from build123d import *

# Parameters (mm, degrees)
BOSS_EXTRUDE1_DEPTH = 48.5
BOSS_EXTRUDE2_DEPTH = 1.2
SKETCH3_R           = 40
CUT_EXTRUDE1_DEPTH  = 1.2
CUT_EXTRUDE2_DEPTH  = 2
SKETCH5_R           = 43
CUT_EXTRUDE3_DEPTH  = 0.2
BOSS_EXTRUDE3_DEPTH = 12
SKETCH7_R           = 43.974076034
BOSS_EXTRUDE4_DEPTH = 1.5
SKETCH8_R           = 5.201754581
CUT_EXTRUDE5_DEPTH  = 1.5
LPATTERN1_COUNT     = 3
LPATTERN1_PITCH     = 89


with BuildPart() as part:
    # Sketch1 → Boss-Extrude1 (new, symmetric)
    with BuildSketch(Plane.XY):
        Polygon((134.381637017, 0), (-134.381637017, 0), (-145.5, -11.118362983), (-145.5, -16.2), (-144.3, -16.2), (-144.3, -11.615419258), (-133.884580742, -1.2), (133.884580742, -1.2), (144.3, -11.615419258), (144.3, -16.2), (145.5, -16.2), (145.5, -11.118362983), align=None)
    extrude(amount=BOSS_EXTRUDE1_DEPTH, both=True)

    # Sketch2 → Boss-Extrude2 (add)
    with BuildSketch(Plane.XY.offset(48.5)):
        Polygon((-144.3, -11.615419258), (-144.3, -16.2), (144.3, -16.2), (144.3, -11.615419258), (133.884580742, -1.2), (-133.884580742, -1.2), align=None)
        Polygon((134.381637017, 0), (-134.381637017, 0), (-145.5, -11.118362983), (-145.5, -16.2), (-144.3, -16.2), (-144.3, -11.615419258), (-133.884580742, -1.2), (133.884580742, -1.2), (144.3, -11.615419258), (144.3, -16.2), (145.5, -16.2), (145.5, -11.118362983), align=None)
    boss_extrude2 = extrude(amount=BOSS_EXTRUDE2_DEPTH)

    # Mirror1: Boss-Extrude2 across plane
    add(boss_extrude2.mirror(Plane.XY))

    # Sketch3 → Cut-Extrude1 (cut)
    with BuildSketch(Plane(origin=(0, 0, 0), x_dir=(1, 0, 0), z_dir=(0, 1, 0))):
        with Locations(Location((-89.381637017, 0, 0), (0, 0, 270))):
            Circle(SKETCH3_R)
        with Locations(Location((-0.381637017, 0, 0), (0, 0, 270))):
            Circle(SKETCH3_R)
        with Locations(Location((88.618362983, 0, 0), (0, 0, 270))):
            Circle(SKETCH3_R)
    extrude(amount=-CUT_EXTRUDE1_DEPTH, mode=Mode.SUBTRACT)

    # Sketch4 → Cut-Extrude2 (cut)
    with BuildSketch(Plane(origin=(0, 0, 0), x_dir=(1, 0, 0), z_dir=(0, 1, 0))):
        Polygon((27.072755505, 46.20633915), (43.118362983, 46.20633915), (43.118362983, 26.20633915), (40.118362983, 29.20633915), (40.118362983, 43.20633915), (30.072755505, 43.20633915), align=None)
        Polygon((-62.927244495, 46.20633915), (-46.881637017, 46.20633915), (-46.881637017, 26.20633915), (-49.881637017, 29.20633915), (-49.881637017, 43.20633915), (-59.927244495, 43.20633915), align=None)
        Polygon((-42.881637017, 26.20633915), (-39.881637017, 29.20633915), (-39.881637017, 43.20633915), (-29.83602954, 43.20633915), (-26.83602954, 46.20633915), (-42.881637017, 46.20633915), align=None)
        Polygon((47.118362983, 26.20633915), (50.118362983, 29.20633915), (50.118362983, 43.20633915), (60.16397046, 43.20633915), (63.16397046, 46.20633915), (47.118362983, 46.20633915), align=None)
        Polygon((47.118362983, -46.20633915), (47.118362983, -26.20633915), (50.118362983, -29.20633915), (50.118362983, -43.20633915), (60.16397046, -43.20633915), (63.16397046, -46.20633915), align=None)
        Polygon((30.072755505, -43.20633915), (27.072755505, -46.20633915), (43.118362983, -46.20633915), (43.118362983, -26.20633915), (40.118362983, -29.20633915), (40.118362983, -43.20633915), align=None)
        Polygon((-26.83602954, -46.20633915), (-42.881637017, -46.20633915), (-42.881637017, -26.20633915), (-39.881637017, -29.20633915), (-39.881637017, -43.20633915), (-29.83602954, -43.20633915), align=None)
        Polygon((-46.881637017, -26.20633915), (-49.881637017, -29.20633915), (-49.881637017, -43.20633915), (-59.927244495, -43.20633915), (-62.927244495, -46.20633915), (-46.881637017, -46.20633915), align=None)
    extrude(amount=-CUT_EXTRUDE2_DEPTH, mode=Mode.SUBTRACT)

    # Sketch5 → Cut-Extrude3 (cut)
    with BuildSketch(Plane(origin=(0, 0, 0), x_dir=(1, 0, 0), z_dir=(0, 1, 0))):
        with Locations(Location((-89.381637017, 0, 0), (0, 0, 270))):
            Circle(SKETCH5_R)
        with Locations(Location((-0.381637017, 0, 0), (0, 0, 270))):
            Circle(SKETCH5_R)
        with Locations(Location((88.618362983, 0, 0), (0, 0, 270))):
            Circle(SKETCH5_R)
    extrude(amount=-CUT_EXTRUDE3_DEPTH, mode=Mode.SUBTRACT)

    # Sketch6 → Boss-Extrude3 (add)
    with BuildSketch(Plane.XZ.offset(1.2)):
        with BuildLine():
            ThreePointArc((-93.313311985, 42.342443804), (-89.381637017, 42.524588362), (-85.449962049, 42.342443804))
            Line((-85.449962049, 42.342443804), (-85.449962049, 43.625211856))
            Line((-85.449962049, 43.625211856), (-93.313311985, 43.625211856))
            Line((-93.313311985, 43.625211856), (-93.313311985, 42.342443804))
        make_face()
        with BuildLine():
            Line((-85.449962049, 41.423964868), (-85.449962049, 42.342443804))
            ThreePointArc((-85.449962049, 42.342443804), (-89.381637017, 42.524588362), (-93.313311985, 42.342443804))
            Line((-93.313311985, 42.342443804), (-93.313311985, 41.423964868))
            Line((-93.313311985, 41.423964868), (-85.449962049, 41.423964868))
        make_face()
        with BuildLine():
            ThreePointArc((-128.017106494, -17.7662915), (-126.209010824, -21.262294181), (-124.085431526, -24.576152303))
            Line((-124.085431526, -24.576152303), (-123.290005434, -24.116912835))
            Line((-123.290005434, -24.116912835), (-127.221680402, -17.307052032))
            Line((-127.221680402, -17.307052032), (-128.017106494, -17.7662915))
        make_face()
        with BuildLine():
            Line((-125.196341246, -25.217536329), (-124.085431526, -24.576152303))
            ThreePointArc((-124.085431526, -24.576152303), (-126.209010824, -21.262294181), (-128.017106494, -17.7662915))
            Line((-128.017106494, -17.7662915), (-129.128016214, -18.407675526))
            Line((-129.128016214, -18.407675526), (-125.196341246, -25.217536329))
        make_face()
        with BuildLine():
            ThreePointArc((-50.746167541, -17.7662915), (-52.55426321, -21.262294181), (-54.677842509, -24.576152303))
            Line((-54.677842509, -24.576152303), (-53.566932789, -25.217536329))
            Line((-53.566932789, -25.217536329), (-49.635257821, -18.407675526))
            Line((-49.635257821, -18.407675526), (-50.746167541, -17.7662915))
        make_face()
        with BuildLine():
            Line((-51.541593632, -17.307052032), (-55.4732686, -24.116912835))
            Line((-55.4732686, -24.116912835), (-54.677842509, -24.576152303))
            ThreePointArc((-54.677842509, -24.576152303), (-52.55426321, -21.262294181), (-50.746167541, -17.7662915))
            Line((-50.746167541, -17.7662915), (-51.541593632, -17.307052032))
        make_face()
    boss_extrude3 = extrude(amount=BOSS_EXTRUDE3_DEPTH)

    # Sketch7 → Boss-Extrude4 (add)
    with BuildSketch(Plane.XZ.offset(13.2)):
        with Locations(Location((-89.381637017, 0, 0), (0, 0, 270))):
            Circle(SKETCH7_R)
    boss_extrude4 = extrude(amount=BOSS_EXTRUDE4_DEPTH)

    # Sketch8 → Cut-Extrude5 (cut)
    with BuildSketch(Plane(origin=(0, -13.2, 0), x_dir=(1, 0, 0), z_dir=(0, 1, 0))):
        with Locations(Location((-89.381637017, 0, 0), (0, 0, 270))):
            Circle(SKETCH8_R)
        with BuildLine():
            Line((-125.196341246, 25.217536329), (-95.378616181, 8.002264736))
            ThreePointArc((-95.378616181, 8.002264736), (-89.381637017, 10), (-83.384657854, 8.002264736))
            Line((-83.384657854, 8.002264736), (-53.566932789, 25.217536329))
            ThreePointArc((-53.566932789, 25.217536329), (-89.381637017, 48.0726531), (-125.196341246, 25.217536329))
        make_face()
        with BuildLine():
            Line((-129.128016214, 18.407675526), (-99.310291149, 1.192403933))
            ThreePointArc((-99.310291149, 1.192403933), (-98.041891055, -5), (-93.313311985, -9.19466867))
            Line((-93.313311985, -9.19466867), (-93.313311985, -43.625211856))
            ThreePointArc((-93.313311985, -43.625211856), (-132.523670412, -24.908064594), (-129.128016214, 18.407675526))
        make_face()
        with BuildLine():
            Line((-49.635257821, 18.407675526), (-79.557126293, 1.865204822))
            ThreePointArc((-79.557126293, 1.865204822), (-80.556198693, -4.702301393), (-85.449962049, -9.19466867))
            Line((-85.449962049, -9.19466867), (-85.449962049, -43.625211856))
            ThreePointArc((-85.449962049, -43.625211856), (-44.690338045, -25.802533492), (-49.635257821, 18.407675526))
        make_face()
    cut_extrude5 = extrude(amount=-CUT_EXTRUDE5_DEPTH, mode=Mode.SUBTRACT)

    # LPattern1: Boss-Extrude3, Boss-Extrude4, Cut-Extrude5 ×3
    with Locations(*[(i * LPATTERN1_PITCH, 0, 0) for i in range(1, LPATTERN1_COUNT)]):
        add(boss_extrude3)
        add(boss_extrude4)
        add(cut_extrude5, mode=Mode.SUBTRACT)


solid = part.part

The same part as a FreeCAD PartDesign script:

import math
import FreeCAD as App
import Part
import Sketcher
Q = App.Units.Quantity

doc = App.newDocument("Part")
params = doc.addObject("Spreadsheet::Sheet", "Params")
for row, (alias, value) in enumerate([
    ("sketch1_width", "1.2 mm"),
    ("pad1_length", "97 mm"),
    ("sketch2_width", "291 mm"),
    ("pad2_length", "1.2 mm"),
    ("sketch3_diameter", "80 mm"),
    ("pocket1_length", "1.2 mm"),
    ("sketch4_height", "14 mm"),
    ("sketch4_height2", "20 mm"),
    ("pocket2_length", "2 mm"),
    ("sketch5_diameter", "86 mm"),
    ("pocket3_length", "0.2 mm"),
    ("pad3_length", "12 mm"),
    ("pad4_length", "1.5 mm"),
    ("sketch8_radius", "10 mm"),
    ("pocket4_length", "1.5 mm"),
    ("linearpattern_pitch", "89 mm"),
], start=1):
    params.set(f"A{row}", alias)
    params.set(f"B{row}", "=" + value)
    params.setAlias(f"B{row}", alias)

body = doc.addObject("PartDesign::Body", "Body")

sketch1 = body.newObject("Sketcher::SketchObject", "Sketch")
sketch1.AttachmentSupport = (doc.getObject("XY_Plane"), [""])
sketch1.MapMode = "FlatFace"
sketch1.addGeometry([
    Part.LineSegment(App.Vector(134.4, 0, 0), App.Vector(-134.4, 0, 0)),
    Part.LineSegment(App.Vector(-134.4, 0, 0), App.Vector(-145.5, -11.1, 0)),
    Part.LineSegment(App.Vector(-145.5, -11.1, 0), App.Vector(-145.5, -16.2, 0)),
    Part.LineSegment(App.Vector(-145.5, -16.2, 0), App.Vector(-144.3, -16.2, 0)),
    Part.LineSegment(App.Vector(-144.3, -16.2, 0), App.Vector(-144.3, -11.6, 0)),
    Part.LineSegment(App.Vector(-144.3, -11.6, 0), App.Vector(-133.9, -1.2, 0)),
    Part.LineSegment(App.Vector(-133.9, -1.2, 0), App.Vector(133.9, -1.2, 0)),
    Part.LineSegment(App.Vector(133.9, -1.2, 0), App.Vector(144.3, -11.6, 0)),
    Part.LineSegment(App.Vector(144.3, -11.6, 0), App.Vector(144.3, -16.2, 0)),
    Part.LineSegment(App.Vector(144.3, -16.2, 0), App.Vector(145.5, -16.2, 0)),
    Part.LineSegment(App.Vector(145.5, -16.2, 0), App.Vector(145.5, -11.1, 0)),
    Part.LineSegment(App.Vector(145.5, -11.1, 0), App.Vector(134.4, 0, 0)),
], False)
sketch1.addConstraint([
    Sketcher.Constraint("Coincident", 0, 2, 1, 1),
    Sketcher.Constraint("Coincident", 1, 2, 2, 1),
    Sketcher.Constraint("Coincident", 2, 2, 3, 1),
    Sketcher.Constraint("Coincident", 3, 2, 4, 1),
    Sketcher.Constraint("Coincident", 4, 2, 5, 1),
    Sketcher.Constraint("Coincident", 5, 2, 6, 1),
    Sketcher.Constraint("Coincident", 6, 2, 7, 1),
    Sketcher.Constraint("Coincident", 7, 2, 8, 1),
    Sketcher.Constraint("Coincident", 8, 2, 9, 1),
    Sketcher.Constraint("Coincident", 9, 2, 10, 1),
    Sketcher.Constraint("Coincident", 10, 2, 11, 1),
    Sketcher.Constraint("Coincident", 11, 2, 0, 1),
    Sketcher.Constraint("Horizontal", 0),
    Sketcher.Constraint("Vertical", 2),
    Sketcher.Constraint("Horizontal", 3),
    Sketcher.Constraint("Vertical", 4),
    Sketcher.Constraint("Horizontal", 6),
    Sketcher.Constraint("Vertical", 8),
    Sketcher.Constraint("Horizontal", 9),
    Sketcher.Constraint("Vertical", 10),
    Sketcher.Constraint("Symmetric", 0, 2, 11, 2, -1, 1),
    Sketcher.Constraint("Symmetric", 4, 2, 7, 2, -2),
    Sketcher.Constraint("Symmetric", 2, 2, 9, 2, -2),
    Sketcher.Constraint("Parallel", 1, 5),
    Sketcher.Constraint("Perpendicular", 5, 7),
    Sketcher.Constraint("Parallel", 7, 11),
    Sketcher.Constraint("Horizontal", 1, 2, 10, 2),
    Sketcher.Constraint("DistanceX", 3, 1, 3, 2, 1.2),
    Sketcher.Constraint("DistanceY", 3, 2, 5, 2, 15.0),
    Sketcher.Constraint("DistanceX", 1, 2, -1, 1, 145.5),
    Sketcher.Constraint("DistanceY", 2, 2, -1, 1, 16.2),
    Sketcher.Constraint("DistanceX", 6, 1, 6, 2, 267.769161),
    Sketcher.Constraint("Distance", 1, 15.72374),
])
sketch1.setExpression("Constraints[27]", "Params.sketch1_width")
pad1 = body.newObject("PartDesign::Pad", "Pad")
pad1.Profile = sketch1
pad1.setExpression("Length", "Params.pad1_length")
pad1.Midplane = True

sketch2 = body.newObject("Sketcher::SketchObject", "Sketch001")
sketch2.AttachmentSupport = (doc.getObject("XY_Plane"), [""])
sketch2.MapMode = "FlatFace"
sketch2.AttachmentOffset = App.Placement(App.Vector(0, 0, 48.5), App.Rotation())
sketch2.addGeometry([
    Part.LineSegment(App.Vector(146, -16, 0), App.Vector(146, -11, 0)),
    Part.LineSegment(App.Vector(146, -11, 0), App.Vector(134, 0, 0)),
    Part.LineSegment(App.Vector(134, 0, 0), App.Vector(-134, 0, 0)),
    Part.LineSegment(App.Vector(-134, 0, 0), App.Vector(-146, -11, 0)),
    Part.LineSegment(App.Vector(-146, -11, 0), App.Vector(-146, -16, 0)),
    Part.LineSegment(App.Vector(-146, -16, 0), App.Vector(146, -16, 0)),
], False)
sketch2.addConstraint([
    Sketcher.Constraint("Coincident", 0, 2, 1, 1),
    Sketcher.Constraint("Coincident", 1, 2, 2, 1),
    Sketcher.Constraint("Coincident", 2, 2, 3, 1),
    Sketcher.Constraint("Coincident", 3, 2, 4, 1),
    Sketcher.Constraint("Coincident", 4, 2, 5, 1),
    Sketcher.Constraint("Coincident", 5, 2, 0, 1),
    Sketcher.Constraint("Vertical", 0),
    Sketcher.Constraint("Horizontal", 2),
    Sketcher.Constraint("Vertical", 4),
    Sketcher.Constraint("Horizontal", 5),
    Sketcher.Constraint("Symmetric", 1, 2, 2, 2, -1, 1),
    Sketcher.Constraint("Symmetric", 0, 2, 3, 2, -2),
    Sketcher.Constraint("Perpendicular", 1, 3),
    Sketcher.Constraint("DistanceX", 5, 1, 5, 2, 291.0),
    Sketcher.Constraint("DistanceY", 4, 2, -1, 1, 16.2),
    Sketcher.Constraint("Distance", 1, 15.72374),
])
sketch2.setExpression("Constraints[13]", "Params.sketch2_width")
pad2 = body.newObject("PartDesign::Pad", "Pad001")
pad2.Profile = sketch2
pad2.setExpression("Length", "Params.pad2_length")
doc.recompute()

mirrored = body.newObject("PartDesign::Mirrored", "Mirrored")
mirrored.Originals = [pad2]
mirrored.MirrorPlane = (doc.getObject("XY_Plane"), [""])
body.Tip = mirrored

sketch3 = body.newObject("Sketcher::SketchObject", "Sketch002")
sketch3.AttachmentSupport = (doc.getObject("XZ_Plane"), [""])
sketch3.MapMode = "FlatFace"
sketch3.addGeometry([
    Part.Circle(App.Vector(-89, 0, 0), App.Vector(0, 0, 1), 40),
    Part.Circle(App.Vector(0, 0, 0), App.Vector(0, 0, 1), 40),
    Part.Circle(App.Vector(89, 0, 0), App.Vector(0, 0, 1), 40),
], False)
sketch3.addConstraint([
    Sketcher.Constraint("Equal", 0, 1),
    Sketcher.Constraint("Equal", 1, 2),
    Sketcher.Constraint("PointOnObject", 0, 3, -1),
    Sketcher.Constraint("PointOnObject", 1, 3, -1),
    Sketcher.Constraint("PointOnObject", 2, 3, -1),
    Sketcher.Constraint("Diameter", 0, 80.0),
    Sketcher.Constraint("DistanceX", 0, 3, 1, 3, 89.0),
    Sketcher.Constraint("DistanceX", 1, 3, 2, 3, 89.0),
    Sketcher.Constraint("DistanceX", 0, 3, -1, 1, 89.381637),
])
sketch3.setExpression("Constraints[5]", "Params.sketch3_diameter")
pocket1 = body.newObject("PartDesign::Pocket", "Pocket")
pocket1.Profile = sketch3
pocket1.setExpression("Length", "Params.pocket1_length")
pocket1.Reversed = True

sketch4 = body.newObject("Sketcher::SketchObject", "Sketch003")
sketch4.AttachmentSupport = (doc.getObject("XZ_Plane"), [""])
sketch4.MapMode = "FlatFace"
sketch4.addGeometry([
    Part.LineSegment(App.Vector(43.1, -46.2, 0), App.Vector(27.1, -46.2, 0)),
    Part.LineSegment(App.Vector(27.1, -46.2, 0), App.Vector(30.1, -43.2, 0)),
    Part.LineSegment(App.Vector(30.1, -43.2, 0), App.Vector(40.1, -43.2, 0)),
    Part.LineSegment(App.Vector(40.1, -43.2, 0), App.Vector(40.1, -29.2, 0)),
    Part.LineSegment(App.Vector(40.1, -29.2, 0), App.Vector(43.1, -26.2, 0)),
    Part.LineSegment(App.Vector(43.1, -26.2, 0), App.Vector(43.1, -46.2, 0)),
    Part.LineSegment(App.Vector(-46.9, -46.2, 0), App.Vector(-62.9, -46.2, 0)),
    Part.LineSegment(App.Vector(-62.9, -46.2, 0), App.Vector(-59.9, -43.2, 0)),
    Part.LineSegment(App.Vector(-59.9, -43.2, 0), App.Vector(-49.9, -43.2, 0)),
    Part.LineSegment(App.Vector(-49.9, -43.2, 0), App.Vector(-49.9, -29.2, 0)),
    Part.LineSegment(App.Vector(-49.9, -29.2, 0), App.Vector(-46.9, -26.2, 0)),
    Part.LineSegment(App.Vector(-46.9, -26.2, 0), App.Vector(-46.9, -46.2, 0)),
    Part.LineSegment(App.Vector(-42.9, -26.2, 0), App.Vector(-39.9, -29.2, 0)),
    Part.LineSegment(App.Vector(-39.9, -29.2, 0), App.Vector(-39.9, -43.2, 0)),
    Part.LineSegment(App.Vector(-39.9, -43.2, 0), App.Vector(-29.8, -43.2, 0)),
    Part.LineSegment(App.Vector(-29.8, -43.2, 0), App.Vector(-26.8, -46.2, 0)),
    Part.LineSegment(App.Vector(-26.8, -46.2, 0), App.Vector(-42.9, -46.2, 0)),
    Part.LineSegment(App.Vector(-42.9, -46.2, 0), App.Vector(-42.9, -26.2, 0)),
    Part.LineSegment(App.Vector(47.1, -26.2, 0), App.Vector(50.1, -29.2, 0)),
    Part.LineSegment(App.Vector(50.1, -29.2, 0), App.Vector(50.1, -43.2, 0)),
    Part.LineSegment(App.Vector(50.1, -43.2, 0), App.Vector(60.2, -43.2, 0)),
    Part.LineSegment(App.Vector(60.2, -43.2, 0), App.Vector(63.2, -46.2, 0)),
    Part.LineSegment(App.Vector(63.2, -46.2, 0), App.Vector(47.1, -46.2, 0)),
    Part.LineSegment(App.Vector(47.1, -46.2, 0), App.Vector(47.1, -26.2, 0)),
    Part.LineSegment(App.Vector(47.1, 26.2, 0), App.Vector(47.1, 46.2, 0)),
    Part.LineSegment(App.Vector(47.1, 46.2, 0), App.Vector(63.2, 46.2, 0)),
    Part.LineSegment(App.Vector(63.2, 46.2, 0), App.Vector(60.2, 43.2, 0)),
    Part.LineSegment(App.Vector(60.2, 43.2, 0), App.Vector(50.1, 43.2, 0)),
    Part.LineSegment(App.Vector(50.1, 43.2, 0), App.Vector(50.1, 29.2, 0)),
    Part.LineSegment(App.Vector(50.1, 29.2, 0), App.Vector(47.1, 26.2, 0)),
    Part.LineSegment(App.Vector(30.1, 43.2, 0), App.Vector(27.1, 46.2, 0)),
    Part.LineSegment(App.Vector(27.1, 46.2, 0), App.Vector(43.1, 46.2, 0)),
    Part.LineSegment(App.Vector(43.1, 46.2, 0), App.Vector(43.1, 26.2, 0)),
    Part.LineSegment(App.Vector(43.1, 26.2, 0), App.Vector(40.1, 29.2, 0)),
    Part.LineSegment(App.Vector(40.1, 29.2, 0), App.Vector(40.1, 43.2, 0)),
    Part.LineSegment(App.Vector(40.1, 43.2, 0), App.Vector(30.1, 43.2, 0)),
    Part.LineSegment(App.Vector(-42.9, 46.2, 0), App.Vector(-26.8, 46.2, 0)),
    Part.LineSegment(App.Vector(-26.8, 46.2, 0), App.Vector(-29.8, 43.2, 0)),
    Part.LineSegment(App.Vector(-29.8, 43.2, 0), App.Vector(-39.9, 43.2, 0)),
    Part.LineSegment(App.Vector(-39.9, 43.2, 0), App.Vector(-39.9, 29.2, 0)),
    Part.LineSegment(App.Vector(-39.9, 29.2, 0), App.Vector(-42.9, 26.2, 0)),
    Part.LineSegment(App.Vector(-42.9, 26.2, 0), App.Vector(-42.9, 46.2, 0)),
    Part.LineSegment(App.Vector(-46.9, 26.2, 0), App.Vector(-49.9, 29.2, 0)),
    Part.LineSegment(App.Vector(-49.9, 29.2, 0), App.Vector(-49.9, 43.2, 0)),
    Part.LineSegment(App.Vector(-49.9, 43.2, 0), App.Vector(-59.9, 43.2, 0)),
    Part.LineSegment(App.Vector(-59.9, 43.2, 0), App.Vector(-62.9, 46.2, 0)),
    Part.LineSegment(App.Vector(-62.9, 46.2, 0), App.Vector(-46.9, 46.2, 0)),
    Part.LineSegment(App.Vector(-46.9, 46.2, 0), App.Vector(-46.9, 26.2, 0)),
], False)
sketch4.addConstraint([
    Sketcher.Constraint("Coincident", 0, 2, 1, 1),
    Sketcher.Constraint("Coincident", 1, 2, 2, 1),
    Sketcher.Constraint("Coincident", 2, 2, 3, 1),
    Sketcher.Constraint("Coincident", 3, 2, 4, 1),
    Sketcher.Constraint("Coincident", 4, 2, 5, 1),
    Sketcher.Constraint("Coincident", 5, 2, 0, 1),
    Sketcher.Constraint("Coincident", 6, 2, 7, 1),
    Sketcher.Constraint("Coincident", 7, 2, 8, 1),
    Sketcher.Constraint("Coincident", 8, 2, 9, 1),
    Sketcher.Constraint("Coincident", 9, 2, 10, 1),
    Sketcher.Constraint("Coincident", 10, 2, 11, 1),
    Sketcher.Constraint("Coincident", 11, 2, 6, 1),
    Sketcher.Constraint("Coincident", 12, 2, 13, 1),
    Sketcher.Constraint("Coincident", 13, 2, 14, 1),
    Sketcher.Constraint("Coincident", 14, 2, 15, 1),
    Sketcher.Constraint("Coincident", 15, 2, 16, 1),
    Sketcher.Constraint("Coincident", 16, 2, 17, 1),
    Sketcher.Constraint("Coincident", 17, 2, 12, 1),
    Sketcher.Constraint("Coincident", 18, 2, 19, 1),
    Sketcher.Constraint("Coincident", 19, 2, 20, 1),
    Sketcher.Constraint("Coincident", 20, 2, 21, 1),
    Sketcher.Constraint("Coincident", 21, 2, 22, 1),
    Sketcher.Constraint("Coincident", 22, 2, 23, 1),
    Sketcher.Constraint("Coincident", 23, 2, 18, 1),
    Sketcher.Constraint("Coincident", 24, 2, 25, 1),
    Sketcher.Constraint("Coincident", 25, 2, 26, 1),
    Sketcher.Constraint("Coincident", 26, 2, 27, 1),
    Sketcher.Constraint("Coincident", 27, 2, 28, 1),
    Sketcher.Constraint("Coincident", 28, 2, 29, 1),
    Sketcher.Constraint("Coincident", 29, 2, 24, 1),
    Sketcher.Constraint("Coincident", 30, 2, 31, 1),
    Sketcher.Constraint("Coincident", 31, 2, 32, 1),
    Sketcher.Constraint("Coincident", 32, 2, 33, 1),
    Sketcher.Constraint("Coincident", 33, 2, 34, 1),
    Sketcher.Constraint("Coincident", 34, 2, 35, 1),
    Sketcher.Constraint("Coincident", 35, 2, 30, 1),
    Sketcher.Constraint("Coincident", 36, 2, 37, 1),
    Sketcher.Constraint("Coincident", 37, 2, 38, 1),
    Sketcher.Constraint("Coincident", 38, 2, 39, 1),
    Sketcher.Constraint("Coincident", 39, 2, 40, 1),
    Sketcher.Constraint("Coincident", 40, 2, 41, 1),
    Sketcher.Constraint("Coincident", 41, 2, 36, 1),
    Sketcher.Constraint("Coincident", 42, 2, 43, 1),
    Sketcher.Constraint("Coincident", 43, 2, 44, 1),
    Sketcher.Constraint("Coincident", 44, 2, 45, 1),
    Sketcher.Constraint("Coincident", 45, 2, 46, 1),
    Sketcher.Constraint("Coincident", 46, 2, 47, 1),
    Sketcher.Constraint("Coincident", 47, 2, 42, 1),
    Sketcher.Constraint("Horizontal", 0),
    Sketcher.Constraint("Horizontal", 2),
    Sketcher.Constraint("Vertical", 3),
    Sketcher.Constraint("Vertical", 5),
    Sketcher.Constraint("Horizontal", 6),
    Sketcher.Constraint("Horizontal", 8),
    Sketcher.Constraint("Vertical", 9),
    Sketcher.Constraint("Vertical", 11),
    Sketcher.Constraint("Vertical", 13),
    Sketcher.Constraint("Horizontal", 14),
    Sketcher.Constraint("Horizontal", 16),
    Sketcher.Constraint("Vertical", 17),
    Sketcher.Constraint("Vertical", 19),
    Sketcher.Constraint("Horizontal", 20),
    Sketcher.Constraint("Horizontal", 22),
    Sketcher.Constraint("Vertical", 23),
    Sketcher.Constraint("Vertical", 24),
    Sketcher.Constraint("Horizontal", 25),
    Sketcher.Constraint("Horizontal", 27),
    Sketcher.Constraint("Vertical", 28),
    Sketcher.Constraint("Horizontal", 31),
    Sketcher.Constraint("Vertical", 32),
    Sketcher.Constraint("Vertical", 34),
    Sketcher.Constraint("Horizontal", 35),
    Sketcher.Constraint("Horizontal", 36),
    Sketcher.Constraint("Horizontal", 38),
    Sketcher.Constraint("Vertical", 39),
    Sketcher.Constraint("Vertical", 41),
    Sketcher.Constraint("Vertical", 43),
    Sketcher.Constraint("Horizontal", 44),
    Sketcher.Constraint("Horizontal", 46),
    Sketcher.Constraint("Vertical", 47),
    Sketcher.Constraint("Symmetric", 22, 2, 24, 2, -1),
    Sketcher.Constraint("Symmetric", 20, 2, 26, 2, -1),
    Sketcher.Constraint("Symmetric", 18, 2, 28, 2, -1),
    Sketcher.Constraint("Symmetric", 0, 2, 30, 2, -1),
    Sketcher.Constraint("Symmetric", 4, 2, 32, 2, -1),
    Sketcher.Constraint("Symmetric", 3, 2, 33, 2, -1),
    Sketcher.Constraint("Symmetric", 1, 2, 35, 2, -1),
    Sketcher.Constraint("Symmetric", 15, 2, 36, 2, -1),
    Sketcher.Constraint("Symmetric", 14, 2, 37, 2, -1),
    Sketcher.Constraint("Symmetric", 12, 2, 39, 2, -1),
    Sketcher.Constraint("Symmetric", 17, 2, 40, 2, -1),
    Sketcher.Constraint("Symmetric", 9, 2, 42, 2, -1),
    Sketcher.Constraint("Symmetric", 7, 2, 44, 2, -1),
    Sketcher.Constraint("Symmetric", 6, 2, 45, 2, -1),
    Sketcher.Constraint("Symmetric", 10, 2, 47, 2, -1),
    Sketcher.Constraint("Parallel", 1, 4),
    Sketcher.Constraint("Parallel", 4, 7),
    Sketcher.Constraint("Parallel", 7, 10),
    Sketcher.Constraint("Perpendicular", 10, 12),
    Sketcher.Constraint("Parallel", 12, 15),
    Sketcher.Constraint("Parallel", 15, 18),
    Sketcher.Constraint("Parallel", 18, 21),
    Sketcher.Constraint("Perpendicular", 21, 26),
    Sketcher.Constraint("Parallel", 26, 29),
    Sketcher.Constraint("Perpendicular", 29, 30),
    Sketcher.Constraint("Horizontal", 5, 2, 6, 2),
    Sketcher.Constraint("Horizontal", 2, 2, 7, 2),
    Sketcher.Constraint("Horizontal", 3, 2, 9, 2),
    Sketcher.Constraint("Horizontal", 4, 2, 10, 2),
    Sketcher.Constraint("Horizontal", 9, 2, 12, 2),
    Sketcher.Constraint("Horizontal", 8, 2, 13, 2),
    Sketcher.Constraint("Horizontal", 11, 2, 15, 2),
    Sketcher.Constraint("Horizontal", 10, 2, 17, 2),
    Sketcher.Constraint("Horizontal", 12, 2, 18, 2),
    Sketcher.Constraint("Horizontal", 14, 2, 19, 2),
    Sketcher.Constraint("Horizontal", 16, 2, 21, 2),
    Sketcher.Constraint("Horizontal", 17, 2, 23, 2),
    Sketcher.Constraint("Equal", 0, 6),
    Sketcher.Constraint("Equal", 8, 14),
    Sketcher.Constraint("Equal", 14, 20),
    Sketcher.Constraint("Equal", 1, 4),
    Sketcher.Constraint("DistanceY", 3, 1, 3, 2, 14.0),
    Sketcher.Constraint("DistanceY", 5, 2, 5, 1, 20.0),
    Sketcher.Constraint("DistanceX", 6, 2, 0, 2, 90.0),
    Sketcher.Constraint("DistanceX", 10, 2, 12, 2, 7.0),
    Sketcher.Constraint("DistanceX", 4, 2, 18, 2, 7.0),
    Sketcher.Constraint("DistanceX", 0, 2, 0, 1, 16.045607),
    Sketcher.Constraint("DistanceY", 0, 2, -1, 1, 46.206339),
    Sketcher.Constraint("DistanceX", 14, 2, -1, 1, 29.83603),
])
sketch4.setExpression("Constraints[121]", "Params.sketch4_height")
sketch4.setExpression("Constraints[122]", "Params.sketch4_height2")
pocket2 = body.newObject("PartDesign::Pocket", "Pocket001")
pocket2.Profile = sketch4
pocket2.setExpression("Length", "Params.pocket2_length")
pocket2.Reversed = True

sketch5 = body.newObject("Sketcher::SketchObject", "Sketch004")
sketch5.AttachmentSupport = (doc.getObject("XZ_Plane"), [""])
sketch5.MapMode = "FlatFace"
sketch5.addGeometry([
    Part.Circle(App.Vector(-89, 0, 0), App.Vector(0, 0, 1), 43),
    Part.Circle(App.Vector(0, 0, 0), App.Vector(0, 0, 1), 43),
    Part.Circle(App.Vector(89, 0, 0), App.Vector(0, 0, 1), 43),
], False)
sketch5.addConstraint([
    Sketcher.Constraint("Equal", 0, 1),
    Sketcher.Constraint("Equal", 1, 2),
    Sketcher.Constraint("PointOnObject", 0, 3, -1),
    Sketcher.Constraint("PointOnObject", 1, 3, -1),
    Sketcher.Constraint("PointOnObject", 2, 3, -1),
    Sketcher.Constraint("Diameter", 0, 86.0),
    Sketcher.Constraint("DistanceX", 0, 3, 1, 3, 89.0),
    Sketcher.Constraint("DistanceX", 1, 3, 2, 3, 89.0),
    Sketcher.Constraint("DistanceX", 0, 3, -1, 1, 89.381637),
])
sketch5.setExpression("Constraints[5]", "Params.sketch5_diameter")
pocket3 = body.newObject("PartDesign::Pocket", "Pocket002")
pocket3.Profile = sketch5
pocket3.setExpression("Length", "Params.pocket3_length")
pocket3.Reversed = True

sketch6 = body.newObject("Sketcher::SketchObject", "Sketch005")
sketch6.AttachmentSupport = (doc.getObject("XZ_Plane"), [""])
sketch6.MapMode = "FlatFace"
sketch6.AttachmentOffset = App.Placement(App.Vector(0, 0, 1.2), App.Rotation())
sketch6.addGeometry([
    Part.LineSegment(App.Vector(-85.4, 43.6, 0), App.Vector(-93.3, 43.6, 0)),
    Part.LineSegment(App.Vector(-93.3, 43.6, 0), App.Vector(-93.3, 41.4, 0)),
    Part.LineSegment(App.Vector(-93.3, 41.4, 0), App.Vector(-85.4, 41.4, 0)),
    Part.LineSegment(App.Vector(-85.4, 41.4, 0), App.Vector(-85.4, 43.6, 0)),
    Part.LineSegment(App.Vector(-124.1, -24.6, 0), App.Vector(-123.3, -24.1, 0)),
    Part.LineSegment(App.Vector(-123.3, -24.1, 0), App.Vector(-127.2, -17.3, 0)),
    Part.LineSegment(App.Vector(-127.2, -17.3, 0), App.Vector(-128, -17.8, 0)),
    Part.LineSegment(App.Vector(-128, -17.8, 0), App.Vector(-129.1, -18.4, 0)),
    Part.LineSegment(App.Vector(-129.1, -18.4, 0), App.Vector(-125.2, -25.2, 0)),
    Part.LineSegment(App.Vector(-125.2, -25.2, 0), App.Vector(-124.1, -24.6, 0)),
    Part.LineSegment(App.Vector(-54.7, -24.6, 0), App.Vector(-53.6, -25.2, 0)),
    Part.LineSegment(App.Vector(-53.6, -25.2, 0), App.Vector(-49.6, -18.4, 0)),
    Part.LineSegment(App.Vector(-49.6, -18.4, 0), App.Vector(-50.7, -17.8, 0)),
    Part.LineSegment(App.Vector(-50.7, -17.8, 0), App.Vector(-51.5, -17.3, 0)),
    Part.LineSegment(App.Vector(-51.5, -17.3, 0), App.Vector(-55.5, -24.1, 0)),
    Part.LineSegment(App.Vector(-55.5, -24.1, 0), App.Vector(-54.7, -24.6, 0)),
], False)
sketch6.addConstraint([
    Sketcher.Constraint("Coincident", 0, 2, 1, 1),
    Sketcher.Constraint("Coincident", 1, 2, 2, 1),
    Sketcher.Constraint("Coincident", 2, 2, 3, 1),
    Sketcher.Constraint("Coincident", 3, 2, 0, 1),
    Sketcher.Constraint("Coincident", 4, 2, 5, 1),
    Sketcher.Constraint("Coincident", 5, 2, 6, 1),
    Sketcher.Constraint("Coincident", 6, 2, 7, 1),
    Sketcher.Constraint("Coincident", 7, 2, 8, 1),
    Sketcher.Constraint("Coincident", 8, 2, 9, 1),
    Sketcher.Constraint("Coincident", 9, 2, 4, 1),
    Sketcher.Constraint("Coincident", 10, 2, 11, 1),
    Sketcher.Constraint("Coincident", 11, 2, 12, 1),
    Sketcher.Constraint("Coincident", 12, 2, 13, 1),
    Sketcher.Constraint("Coincident", 13, 2, 14, 1),
    Sketcher.Constraint("Coincident", 14, 2, 15, 1),
    Sketcher.Constraint("Coincident", 15, 2, 10, 1),
    Sketcher.Constraint("Horizontal", 0),
    Sketcher.Constraint("Vertical", 1),
    Sketcher.Constraint("Horizontal", 2),
    Sketcher.Constraint("Vertical", 3),
    Sketcher.Constraint("Perpendicular", 4, 5),
    Sketcher.Constraint("Perpendicular", 5, 6),
    Sketcher.Constraint("Parallel", 6, 7),
    Sketcher.Constraint("Perpendicular", 7, 8),
    Sketcher.Constraint("Perpendicular", 8, 9),
    Sketcher.Constraint("Perpendicular", 10, 11),
    Sketcher.Constraint("Perpendicular", 11, 12),
    Sketcher.Constraint("Parallel", 12, 13),
    Sketcher.Constraint("Perpendicular", 13, 14),
    Sketcher.Constraint("Perpendicular", 14, 15),
    Sketcher.Constraint("Horizontal", 8, 2, 10, 2),
    Sketcher.Constraint("Horizontal", 7, 2, 11, 2),
    Sketcher.Constraint("Horizontal", 6, 2, 12, 2),
    Sketcher.Constraint("Horizontal", 5, 2, 13, 2),
    Sketcher.Constraint("Horizontal", 9, 2, 15, 2),
    Sketcher.Constraint("Equal", 4, 6),
    Sketcher.Constraint("Equal", 9, 10),
    Sketcher.Constraint("Angle", 4, Q("30 deg")),
    Sketcher.Constraint("DistanceX", 0, 2, 0, 1, 7.86335),
    Sketcher.Constraint("DistanceX", 6, 2, 4, 2, 4.727101),
    Sketcher.Constraint("DistanceY", 8, 2, 1, 2, 66.641501),
    Sketcher.Constraint("DistanceY", 9, 2, 5, 2, 7.2691),
    Sketcher.Constraint("DistanceX", 9, 2, 10, 2, 70.518499),
    Sketcher.Constraint("Distance", 7, 1.282768),
    Sketcher.Constraint("DistanceY", 1, 2, 1, 1, 2.201247),
    Sketcher.Constraint("DistanceX", 0, 2, -1, 1, 93.313312),
    Sketcher.Constraint("DistanceY", -1, 1, 0, 2, 43.625212),
    Sketcher.Constraint("DistanceX", 5, 2, -1, 1, 127.22168),
])
pad3 = body.newObject("PartDesign::Pad", "Pad002")
pad3.Profile = sketch6
pad3.setExpression("Length", "Params.pad3_length")

sketch7 = body.newObject("Sketcher::SketchObject", "Sketch006")
sketch7.AttachmentSupport = (doc.getObject("XZ_Plane"), [""])
sketch7.MapMode = "FlatFace"
sketch7.AttachmentOffset = App.Placement(App.Vector(0, 0, 13.2), App.Rotation())
sketch7.addGeometry(Part.Circle(App.Vector(-89, 0, 0), App.Vector(0, 0, 1), 44), False)
sketch7.addConstraint([
    Sketcher.Constraint("PointOnObject", 0, 3, -1),
    Sketcher.Constraint("Diameter", 0, 87.948152),
    Sketcher.Constraint("DistanceX", 0, 3, -1, 1, 89.381637),
])
pad4 = body.newObject("PartDesign::Pad", "Pad003")
pad4.Profile = sketch7
pad4.setExpression("Length", "Params.pad4_length")

sketch8 = body.newObject("Sketcher::SketchObject", "Sketch007")
sketch8.AttachmentSupport = (doc.getObject("XZ_Plane"), [""])
sketch8.MapMode = "FlatFace"
sketch8.AttachmentOffset = App.Placement(App.Vector(0, 0, 13.2), App.Rotation())
sketch8.addGeometry([
    Part.Circle(App.Vector(-89, 0, 0), App.Vector(0, 0, 1), 5),
    Part.LineSegment(App.Vector(-125, -25, 0), App.Vector(-95, -8, 0)),
    Part.ArcOfCircle(Part.Circle(App.Vector(-89, 0, 0), App.Vector(0, 0, 1), 10), math.radians(-127), math.radians(-53)),
    Part.LineSegment(App.Vector(-83, -8, 0), App.Vector(-54, -25, 0)),
    Part.ArcOfCircle(Part.Circle(App.Vector(-89, -9, 0), App.Vector(0, 0, 1), 39), math.radians(-155), math.radians(-25)),
    Part.LineSegment(App.Vector(-99, -1, 0), App.Vector(-129, -18, 0)),
    Part.ArcOfCircle(Part.Circle(App.Vector(-99, 6, 0), App.Vector(0, 0, 1), 38), math.radians(81), math.radians(219)),
    Part.LineSegment(App.Vector(-93, 44, 0), App.Vector(-93, 9, 0)),
    Part.ArcOfCircle(Part.Circle(App.Vector(-89, 0, 0), App.Vector(0, 0, 1), 10), math.radians(113), math.radians(187)),
    Part.LineSegment(App.Vector(-50, -18, 0), App.Vector(-80, -2, 0)),
    Part.ArcOfCircle(Part.Circle(App.Vector(-89, 0, 0), App.Vector(0, 0, 1), 10), math.radians(-11), math.radians(67)),
    Part.LineSegment(App.Vector(-85, 9, 0), App.Vector(-85, 44, 0)),
    Part.ArcOfCircle(Part.Circle(App.Vector(-77, 7, 0), App.Vector(0, 0, 1), 37), math.radians(-43), math.radians(103)),
], False)
sketch8.addConstraint([
    Sketcher.Constraint("Coincident", 1, 2, 2, 1),
    Sketcher.Constraint("Coincident", 2, 2, 3, 1),
    Sketcher.Constraint("Coincident", 3, 2, 4, 2),
    Sketcher.Constraint("Coincident", 4, 1, 1, 1),
    Sketcher.Constraint("Coincident", 5, 2, 6, 2),
    Sketcher.Constraint("Coincident", 6, 1, 7, 1),
    Sketcher.Constraint("Coincident", 7, 2, 8, 1),
    Sketcher.Constraint("Coincident", 8, 2, 5, 1),
    Sketcher.Constraint("Coincident", 9, 2, 10, 1),
    Sketcher.Constraint("Coincident", 10, 2, 11, 1),
    Sketcher.Constraint("Coincident", 11, 2, 12, 2),
    Sketcher.Constraint("Coincident", 12, 1, 9, 1),
    Sketcher.Constraint("Vertical", 7),
    Sketcher.Constraint("Vertical", 11),
    Sketcher.Constraint("Coincident", 2, 3, 0, 3),
    Sketcher.Constraint("Coincident", 8, 3, 0, 3),
    Sketcher.Constraint("Coincident", 10, 3, 0, 3),
    Sketcher.Constraint("Equal", 2, 8),
    Sketcher.Constraint("Equal", 8, 10),
    Sketcher.Constraint("PointOnObject", 0, 3, -1),
    Sketcher.Constraint("Parallel", 1, 5),
    Sketcher.Constraint("Horizontal", 1, 2, 2, 2),
    Sketcher.Constraint("Horizontal", 3, 2, 4, 1),
    Sketcher.Constraint("Horizontal", 7, 2, 10, 2),
    Sketcher.Constraint("Horizontal", 6, 1, 11, 2),
    Sketcher.Constraint("Horizontal", 5, 2, 12, 1),
    Sketcher.Constraint("Vertical", 2, 3, 4, 3),
    Sketcher.Constraint("Equal", 3, 5),
    Sketcher.Constraint("Radius", 2, 10.0),
    Sketcher.Constraint("Angle", 1, Q("30 deg")),
    Sketcher.Constraint("Diameter", 0, 10.403509),
    Sketcher.Constraint("Radius", 4, 39.488956),
    Sketcher.Constraint("Radius", 6, 38.371785),
    Sketcher.Constraint("Radius", 12, 37.498674),
    Sketcher.Constraint("DistanceX", 5, 2, 1, 2, 33.7494),
    Sketcher.Constraint("DistanceY", 9, 2, 12, 3, 8.918401),
    Sketcher.Constraint("DistanceX", 2, 2, 12, 1, 33.7494),
    Sketcher.Constraint("DistanceY", 7, 2, 7, 1, 34.430543),
    Sketcher.Constraint("DistanceX", 6, 3, -1, 1, 99.29273),
    Sketcher.Constraint("DistanceX", 4, 1, -1, 1, 125.196341),
    Sketcher.Constraint("DistanceX", 6, 1, -1, 1, 93.313312),
    Sketcher.Constraint("DistanceY", -1, 1, 6, 1, 43.625212),
])
sketch8.setExpression("Constraints[28]", "Params.sketch8_radius")
pocket4 = body.newObject("PartDesign::Pocket", "Pocket003")
pocket4.Profile = sketch8
pocket4.setExpression("Length", "Params.pocket4_length")
pocket4.Reversed = True
doc.recompute()

linearpattern = body.newObject("PartDesign::LinearPattern", "LinearPattern")
linearpattern.Originals = [pad3, pad4, pocket4]
linearpattern.Direction = (doc.getObject("X_Axis"), [""])
linearpattern.Mode = "offset"
linearpattern.setExpression("Offset", "Params.linearpattern_pitch")
linearpattern.Occurrences = 3
body.Tip = linearpattern

doc.recompute()
